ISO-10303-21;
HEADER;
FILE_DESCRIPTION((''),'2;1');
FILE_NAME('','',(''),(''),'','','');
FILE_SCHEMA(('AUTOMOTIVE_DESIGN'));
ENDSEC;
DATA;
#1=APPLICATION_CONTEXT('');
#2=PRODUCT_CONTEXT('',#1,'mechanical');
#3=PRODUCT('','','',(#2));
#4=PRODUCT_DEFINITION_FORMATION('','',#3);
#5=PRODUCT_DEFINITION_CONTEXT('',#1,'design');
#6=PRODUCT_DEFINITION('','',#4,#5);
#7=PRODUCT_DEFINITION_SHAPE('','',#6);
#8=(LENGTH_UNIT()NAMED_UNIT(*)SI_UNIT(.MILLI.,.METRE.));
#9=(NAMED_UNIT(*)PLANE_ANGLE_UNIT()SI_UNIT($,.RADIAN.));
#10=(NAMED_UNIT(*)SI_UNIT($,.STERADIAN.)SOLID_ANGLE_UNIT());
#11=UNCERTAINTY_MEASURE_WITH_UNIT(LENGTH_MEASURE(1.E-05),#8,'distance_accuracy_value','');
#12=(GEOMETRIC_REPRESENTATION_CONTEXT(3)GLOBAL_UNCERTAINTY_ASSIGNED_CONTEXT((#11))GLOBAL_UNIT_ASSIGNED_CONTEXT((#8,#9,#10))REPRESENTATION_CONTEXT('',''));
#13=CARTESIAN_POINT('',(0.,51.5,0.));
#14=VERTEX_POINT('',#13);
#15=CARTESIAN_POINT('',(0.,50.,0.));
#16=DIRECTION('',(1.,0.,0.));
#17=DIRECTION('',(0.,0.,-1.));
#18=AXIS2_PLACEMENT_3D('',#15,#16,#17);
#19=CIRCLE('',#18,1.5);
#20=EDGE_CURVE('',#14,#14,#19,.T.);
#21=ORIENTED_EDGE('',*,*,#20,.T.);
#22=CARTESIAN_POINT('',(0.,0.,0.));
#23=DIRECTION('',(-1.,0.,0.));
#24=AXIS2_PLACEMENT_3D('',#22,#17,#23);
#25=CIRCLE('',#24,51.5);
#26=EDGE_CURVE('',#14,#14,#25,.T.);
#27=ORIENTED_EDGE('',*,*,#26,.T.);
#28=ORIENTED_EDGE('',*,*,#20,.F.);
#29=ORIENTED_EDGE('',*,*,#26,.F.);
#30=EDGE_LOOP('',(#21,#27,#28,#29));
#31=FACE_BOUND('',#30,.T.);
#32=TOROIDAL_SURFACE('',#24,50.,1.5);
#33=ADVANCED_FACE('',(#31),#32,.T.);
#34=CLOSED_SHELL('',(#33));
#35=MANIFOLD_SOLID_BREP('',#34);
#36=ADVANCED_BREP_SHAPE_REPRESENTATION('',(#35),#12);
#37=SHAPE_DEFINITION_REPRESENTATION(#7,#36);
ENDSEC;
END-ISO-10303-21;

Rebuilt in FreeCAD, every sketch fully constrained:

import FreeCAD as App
import Part
import Sketcher
from FreeCAD import Vector
Q = App.Units.Quantity

doc = App.newDocument("Part")
body = doc.addObject("PartDesign::Body", "Body")

# Sketch on YZ plane
sketch1 = body.newObject("Sketcher::SketchObject", "Sketch")
sketch1.AttachmentSupport = (doc.getObject("YZ_Plane"), [""])
sketch1.MapMode = "FlatFace"
sketch1.addGeometry(Part.Circle(Vector(50, 0, 0), Vector(0, 0, 1), 1.5), False)
sketch1.addConstraint([
    Sketcher.Constraint("PointOnObject", 0, 3, -1),
    Sketcher.Constraint("Diameter", 0, Q("3 mm")),
    Sketcher.Constraint("DistanceX", -1, 1, 0, 3, Q("50 mm")),
])

# Sketch on XY plane
sketch2 = body.newObject("Sketcher::SketchObject", "Sketch001")
sketch2.AttachmentSupport = (doc.getObject("XY_Plane"), [""])
sketch2.MapMode = "FlatFace"
sketch2.addGeometry(Part.Circle(Vector(0, 0, 0), Vector(0, 0, 1), 51), False)
sketch2.addConstraint([
    Sketcher.Constraint("Coincident", 0, 3, -1, 1),
    Sketcher.Constraint("Diameter", 0, Q("101.5 mm")),
])
doc.recompute()

additivepipe = body.newObject("PartDesign::AdditivePipe", "AdditivePipe")
additivepipe.Profile = sketch1
additivepipe.Spine = (sketch2, ["Edge1"])

doc.recompute()
